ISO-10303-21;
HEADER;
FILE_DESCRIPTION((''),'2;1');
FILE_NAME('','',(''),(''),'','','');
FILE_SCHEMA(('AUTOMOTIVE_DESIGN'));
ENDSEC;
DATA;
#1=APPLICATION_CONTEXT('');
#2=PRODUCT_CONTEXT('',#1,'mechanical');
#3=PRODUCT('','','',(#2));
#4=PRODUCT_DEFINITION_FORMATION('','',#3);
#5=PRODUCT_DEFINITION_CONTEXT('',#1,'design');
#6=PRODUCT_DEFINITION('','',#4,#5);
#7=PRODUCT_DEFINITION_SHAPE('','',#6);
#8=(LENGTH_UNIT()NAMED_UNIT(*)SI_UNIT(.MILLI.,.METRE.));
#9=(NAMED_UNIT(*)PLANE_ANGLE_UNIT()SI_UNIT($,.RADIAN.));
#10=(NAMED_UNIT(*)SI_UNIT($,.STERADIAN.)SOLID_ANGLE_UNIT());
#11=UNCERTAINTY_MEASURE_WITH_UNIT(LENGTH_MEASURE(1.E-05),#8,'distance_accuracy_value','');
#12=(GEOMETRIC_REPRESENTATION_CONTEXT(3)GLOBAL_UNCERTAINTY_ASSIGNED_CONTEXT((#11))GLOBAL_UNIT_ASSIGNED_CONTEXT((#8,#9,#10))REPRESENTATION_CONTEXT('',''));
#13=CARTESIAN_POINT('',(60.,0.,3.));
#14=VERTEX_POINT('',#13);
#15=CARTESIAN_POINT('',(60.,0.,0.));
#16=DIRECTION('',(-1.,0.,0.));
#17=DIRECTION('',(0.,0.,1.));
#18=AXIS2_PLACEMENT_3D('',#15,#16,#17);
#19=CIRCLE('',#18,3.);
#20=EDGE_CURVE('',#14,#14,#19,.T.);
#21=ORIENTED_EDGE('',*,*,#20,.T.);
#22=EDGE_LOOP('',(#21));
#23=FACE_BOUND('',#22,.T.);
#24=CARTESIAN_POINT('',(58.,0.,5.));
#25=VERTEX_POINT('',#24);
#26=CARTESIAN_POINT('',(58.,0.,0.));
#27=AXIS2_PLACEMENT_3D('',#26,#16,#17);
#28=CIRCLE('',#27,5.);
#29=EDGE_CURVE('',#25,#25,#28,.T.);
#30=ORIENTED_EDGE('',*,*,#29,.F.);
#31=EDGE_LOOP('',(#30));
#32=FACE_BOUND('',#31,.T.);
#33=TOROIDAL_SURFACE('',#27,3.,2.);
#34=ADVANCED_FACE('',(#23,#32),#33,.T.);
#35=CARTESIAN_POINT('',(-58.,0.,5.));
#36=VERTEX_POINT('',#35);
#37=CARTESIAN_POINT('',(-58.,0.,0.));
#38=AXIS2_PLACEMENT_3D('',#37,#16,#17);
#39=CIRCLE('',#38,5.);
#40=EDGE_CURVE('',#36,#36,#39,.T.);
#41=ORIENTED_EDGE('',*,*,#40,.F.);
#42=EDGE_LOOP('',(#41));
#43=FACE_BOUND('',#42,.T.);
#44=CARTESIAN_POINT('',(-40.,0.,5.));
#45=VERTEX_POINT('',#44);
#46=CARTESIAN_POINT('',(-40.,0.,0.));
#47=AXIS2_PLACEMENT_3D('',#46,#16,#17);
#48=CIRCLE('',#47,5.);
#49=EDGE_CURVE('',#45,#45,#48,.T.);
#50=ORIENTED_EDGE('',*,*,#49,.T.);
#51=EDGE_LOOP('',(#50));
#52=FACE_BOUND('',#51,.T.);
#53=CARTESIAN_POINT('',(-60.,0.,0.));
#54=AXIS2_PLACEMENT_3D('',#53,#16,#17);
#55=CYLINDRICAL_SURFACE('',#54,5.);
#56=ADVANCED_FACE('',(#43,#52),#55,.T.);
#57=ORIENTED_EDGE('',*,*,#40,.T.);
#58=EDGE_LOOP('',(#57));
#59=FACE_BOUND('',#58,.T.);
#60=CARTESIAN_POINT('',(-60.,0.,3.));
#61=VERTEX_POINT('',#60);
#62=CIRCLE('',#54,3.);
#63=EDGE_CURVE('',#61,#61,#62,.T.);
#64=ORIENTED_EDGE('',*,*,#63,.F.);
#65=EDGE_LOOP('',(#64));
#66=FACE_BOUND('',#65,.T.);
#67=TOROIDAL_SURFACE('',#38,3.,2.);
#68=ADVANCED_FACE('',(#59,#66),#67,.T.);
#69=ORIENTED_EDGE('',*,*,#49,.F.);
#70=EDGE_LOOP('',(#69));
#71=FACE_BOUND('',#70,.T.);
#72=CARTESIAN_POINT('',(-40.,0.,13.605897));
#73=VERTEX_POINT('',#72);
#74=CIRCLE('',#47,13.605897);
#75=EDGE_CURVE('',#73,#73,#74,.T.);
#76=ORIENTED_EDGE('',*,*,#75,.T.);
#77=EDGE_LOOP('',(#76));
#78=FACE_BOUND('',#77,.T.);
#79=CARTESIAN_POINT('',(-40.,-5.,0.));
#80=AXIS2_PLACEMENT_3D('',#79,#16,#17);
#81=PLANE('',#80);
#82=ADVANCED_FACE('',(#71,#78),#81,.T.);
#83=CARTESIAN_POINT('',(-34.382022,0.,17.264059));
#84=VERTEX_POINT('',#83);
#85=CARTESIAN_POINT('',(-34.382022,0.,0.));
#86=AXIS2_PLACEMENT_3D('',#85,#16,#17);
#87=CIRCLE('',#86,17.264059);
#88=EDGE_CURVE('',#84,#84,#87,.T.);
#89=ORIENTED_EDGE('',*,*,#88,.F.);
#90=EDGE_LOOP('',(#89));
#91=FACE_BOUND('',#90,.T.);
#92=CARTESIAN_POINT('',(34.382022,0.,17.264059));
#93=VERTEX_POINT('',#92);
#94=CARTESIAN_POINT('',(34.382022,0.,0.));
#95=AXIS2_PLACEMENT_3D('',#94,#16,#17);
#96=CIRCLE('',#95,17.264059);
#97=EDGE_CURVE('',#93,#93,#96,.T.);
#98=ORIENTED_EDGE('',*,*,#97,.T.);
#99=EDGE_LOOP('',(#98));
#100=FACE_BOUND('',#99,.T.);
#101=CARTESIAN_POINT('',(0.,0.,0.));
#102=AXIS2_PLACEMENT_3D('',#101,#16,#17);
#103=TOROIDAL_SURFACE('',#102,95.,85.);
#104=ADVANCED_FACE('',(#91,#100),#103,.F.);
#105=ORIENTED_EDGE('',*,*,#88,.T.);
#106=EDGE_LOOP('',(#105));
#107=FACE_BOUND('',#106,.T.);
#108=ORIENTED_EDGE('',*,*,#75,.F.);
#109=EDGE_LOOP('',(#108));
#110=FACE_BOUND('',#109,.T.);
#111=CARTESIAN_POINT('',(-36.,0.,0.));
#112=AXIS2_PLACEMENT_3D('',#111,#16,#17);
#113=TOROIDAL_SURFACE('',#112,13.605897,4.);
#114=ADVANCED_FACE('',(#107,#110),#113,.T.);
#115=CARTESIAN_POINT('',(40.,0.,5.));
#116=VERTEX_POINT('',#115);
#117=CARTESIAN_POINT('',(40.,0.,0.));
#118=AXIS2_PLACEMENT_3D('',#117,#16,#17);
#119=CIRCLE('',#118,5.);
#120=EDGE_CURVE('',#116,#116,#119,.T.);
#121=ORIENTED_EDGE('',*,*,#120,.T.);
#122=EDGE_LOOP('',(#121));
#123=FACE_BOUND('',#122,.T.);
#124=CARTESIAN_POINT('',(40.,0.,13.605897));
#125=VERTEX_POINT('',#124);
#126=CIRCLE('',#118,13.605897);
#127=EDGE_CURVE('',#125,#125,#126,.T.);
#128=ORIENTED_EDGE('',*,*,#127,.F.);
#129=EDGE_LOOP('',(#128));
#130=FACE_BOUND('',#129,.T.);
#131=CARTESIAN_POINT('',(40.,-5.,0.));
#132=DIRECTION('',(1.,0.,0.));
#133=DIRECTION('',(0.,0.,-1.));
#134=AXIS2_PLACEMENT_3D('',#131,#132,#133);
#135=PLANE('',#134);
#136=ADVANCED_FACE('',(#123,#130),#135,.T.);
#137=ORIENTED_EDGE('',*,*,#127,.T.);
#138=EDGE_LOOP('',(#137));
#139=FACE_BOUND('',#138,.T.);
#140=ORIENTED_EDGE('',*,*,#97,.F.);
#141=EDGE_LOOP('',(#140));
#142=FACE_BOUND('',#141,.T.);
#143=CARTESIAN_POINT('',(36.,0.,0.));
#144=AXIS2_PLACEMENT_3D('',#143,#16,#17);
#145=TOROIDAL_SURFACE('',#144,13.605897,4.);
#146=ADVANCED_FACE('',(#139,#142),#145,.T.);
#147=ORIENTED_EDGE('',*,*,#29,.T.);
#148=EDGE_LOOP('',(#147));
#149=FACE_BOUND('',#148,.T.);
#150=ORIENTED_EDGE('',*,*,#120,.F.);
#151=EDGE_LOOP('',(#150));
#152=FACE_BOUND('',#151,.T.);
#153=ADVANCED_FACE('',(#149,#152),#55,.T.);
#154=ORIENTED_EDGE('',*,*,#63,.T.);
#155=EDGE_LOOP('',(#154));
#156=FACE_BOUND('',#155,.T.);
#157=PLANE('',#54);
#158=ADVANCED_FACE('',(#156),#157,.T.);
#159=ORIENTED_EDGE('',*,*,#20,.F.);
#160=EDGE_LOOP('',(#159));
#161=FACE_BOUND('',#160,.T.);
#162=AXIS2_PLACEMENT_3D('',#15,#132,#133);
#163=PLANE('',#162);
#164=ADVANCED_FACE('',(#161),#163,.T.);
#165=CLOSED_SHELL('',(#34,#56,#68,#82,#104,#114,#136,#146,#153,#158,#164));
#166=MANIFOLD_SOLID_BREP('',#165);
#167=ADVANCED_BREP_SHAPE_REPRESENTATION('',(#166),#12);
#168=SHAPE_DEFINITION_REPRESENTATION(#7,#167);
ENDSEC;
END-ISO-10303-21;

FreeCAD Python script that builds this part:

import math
import FreeCAD as App
import Part
import Sketcher
from FreeCAD import Vector

doc = App.newDocument("Part")
body = doc.addObject("PartDesign::Body", "Body")

sketch1 = body.newObject("Sketcher::SketchObject", "Sketch")
sketch1.AttachmentSupport = (doc.getObject("XY_Plane"), [""])
sketch1.MapMode = "FlatFace"
sketch1.addGeometry(Part.LineSegment(Vector(60, 0, 0), Vector(-60, 0, 0)), False)
sketch1.addGeometry(Part.LineSegment(Vector(-60, 0, 0), Vector(-60, -3, 0)), False)
sketch1.addGeometry(Part.ArcOfCircle(Part.Circle(Vector(-58, -3, 0), Vector(0, 0, 1), 2), math.radians(-180), math.radians(-90)), False)
sketch1.addGeometry(Part.LineSegment(Vector(-58, -5, 0), Vector(-40, -5, 0)), False)
sketch1.addGeometry(Part.LineSegment(Vector(-40, -5, 0), Vector(-40, -13.6, 0)), False)
sketch1.addGeometry(Part.ArcOfCircle(Part.Circle(Vector(-36, -13.6, 0), Vector(0, 0, 1), 4), math.radians(180), math.radians(294)), False)
sketch1.addGeometry(Part.ArcOfCircle(Part.Circle(Vector(0, -95, 0), Vector(0, 0, 1), 85), math.radians(66), math.radians(114)), False)
sketch1.addGeometry(Part.ArcOfCircle(Part.Circle(Vector(36, -13.6, 0), Vector(0, 0, 1), 4), math.radians(-114), math.radians(0)), False)
sketch1.addGeometry(Part.LineSegment(Vector(40, -13.6, 0), Vector(40, -5, 0)), False)
sketch1.addGeometry(Part.LineSegment(Vector(40, -5, 0), Vector(58, -5, 0)), False)
sketch1.addGeometry(Part.ArcOfCircle(Part.Circle(Vector(58, -3, 0), Vector(0, 0, 1), 2), math.radians(-90), math.radians(0)), False)
sketch1.addGeometry(Part.LineSegment(Vector(60, -3, 0), Vector(60, 0, 0)), False)
sketch1.addConstraint(Sketcher.Constraint("Coincident", 0, 2, 1, 1))
sketch1.addConstraint(Sketcher.Constraint("Tangent", 1, 2, 2, 1))
sketch1.addConstraint(Sketcher.Constraint("Tangent", 2, 2, 3, 1))
sketch1.addConstraint(Sketcher.Constraint("Coincident", 3, 2, 4, 1))
sketch1.addConstraint(Sketcher.Constraint("Tangent", 4, 2, 5, 1))
sketch1.addConstraint(Sketcher.Constraint("Tangent", 5, 2, 6, 2))
sketch1.addConstraint(Sketcher.Constraint("Tangent", 6, 1, 7, 1))
sketch1.addConstraint(Sketcher.Constraint("Tangent", 7, 2, 8, 1))
sketch1.addConstraint(Sketcher.Constraint("Coincident", 8, 2, 9, 1))
sketch1.addConstraint(Sketcher.Constraint("Tangent", 9, 2, 10, 1))
sketch1.addConstraint(Sketcher.Constraint("Tangent", 10, 2, 11, 1))
sketch1.addConstraint(Sketcher.Constraint("Coincident", 11, 2, 0, 1))
sketch1.addConstraint(Sketcher.Constraint("Horizontal", 0))
sketch1.addConstraint(Sketcher.Constraint("Vertical", 1))
sketch1.addConstraint(Sketcher.Constraint("Horizontal", 3))
sketch1.addConstraint(Sketcher.Constraint("Vertical", 4))
sketch1.addConstraint(Sketcher.Constraint("Vertical", 8))
sketch1.addConstraint(Sketcher.Constraint("Horizontal", 9))
sketch1.addConstraint(Sketcher.Constraint("Vertical", 11))
sketch1.addConstraint(Sketcher.Constraint("Equal", 5, 7))
sketch1.addConstraint(Sketcher.Constraint("Equal", 2, 10))
sketch1.addConstraint(Sketcher.Constraint("Symmetric", 0, 2, 11, 2, -1, 1))
sketch1.addConstraint(Sketcher.Constraint("Symmetric", 5, 3, 7, 3, -2))
sketch1.addConstraint(Sketcher.Constraint("Horizontal", 2, 3, 10, 3))
sketch1.addConstraint(Sketcher.Constraint("Radius", 2, 2.0))
sketch1.addConstraint(Sketcher.Constraint("Radius", 5, 4.0))
sketch1.addConstraint(Sketcher.Constraint("Radius", 6, 85.0))
sketch1.addConstraint(Sketcher.Constraint("DistanceX", 0, 2, 0, 1, 120.0))
sketch1.addConstraint(Sketcher.Constraint("DistanceX", 3, 1, 3, 2, 18.0))
sketch1.addConstraint(Sketcher.Constraint("DistanceY", 1, 2, 1, 1, 3.0))
sketch1.addConstraint(Sketcher.Constraint("DistanceY", 6, 3, -1, 1, 95.0))
revolution = body.newObject("PartDesign::Revolution", "Revolution")
revolution.Profile = sketch1
revolution.ReferenceAxis = (sketch1, ["H_Axis"])
revolution.Angle = 360

doc.recompute()
